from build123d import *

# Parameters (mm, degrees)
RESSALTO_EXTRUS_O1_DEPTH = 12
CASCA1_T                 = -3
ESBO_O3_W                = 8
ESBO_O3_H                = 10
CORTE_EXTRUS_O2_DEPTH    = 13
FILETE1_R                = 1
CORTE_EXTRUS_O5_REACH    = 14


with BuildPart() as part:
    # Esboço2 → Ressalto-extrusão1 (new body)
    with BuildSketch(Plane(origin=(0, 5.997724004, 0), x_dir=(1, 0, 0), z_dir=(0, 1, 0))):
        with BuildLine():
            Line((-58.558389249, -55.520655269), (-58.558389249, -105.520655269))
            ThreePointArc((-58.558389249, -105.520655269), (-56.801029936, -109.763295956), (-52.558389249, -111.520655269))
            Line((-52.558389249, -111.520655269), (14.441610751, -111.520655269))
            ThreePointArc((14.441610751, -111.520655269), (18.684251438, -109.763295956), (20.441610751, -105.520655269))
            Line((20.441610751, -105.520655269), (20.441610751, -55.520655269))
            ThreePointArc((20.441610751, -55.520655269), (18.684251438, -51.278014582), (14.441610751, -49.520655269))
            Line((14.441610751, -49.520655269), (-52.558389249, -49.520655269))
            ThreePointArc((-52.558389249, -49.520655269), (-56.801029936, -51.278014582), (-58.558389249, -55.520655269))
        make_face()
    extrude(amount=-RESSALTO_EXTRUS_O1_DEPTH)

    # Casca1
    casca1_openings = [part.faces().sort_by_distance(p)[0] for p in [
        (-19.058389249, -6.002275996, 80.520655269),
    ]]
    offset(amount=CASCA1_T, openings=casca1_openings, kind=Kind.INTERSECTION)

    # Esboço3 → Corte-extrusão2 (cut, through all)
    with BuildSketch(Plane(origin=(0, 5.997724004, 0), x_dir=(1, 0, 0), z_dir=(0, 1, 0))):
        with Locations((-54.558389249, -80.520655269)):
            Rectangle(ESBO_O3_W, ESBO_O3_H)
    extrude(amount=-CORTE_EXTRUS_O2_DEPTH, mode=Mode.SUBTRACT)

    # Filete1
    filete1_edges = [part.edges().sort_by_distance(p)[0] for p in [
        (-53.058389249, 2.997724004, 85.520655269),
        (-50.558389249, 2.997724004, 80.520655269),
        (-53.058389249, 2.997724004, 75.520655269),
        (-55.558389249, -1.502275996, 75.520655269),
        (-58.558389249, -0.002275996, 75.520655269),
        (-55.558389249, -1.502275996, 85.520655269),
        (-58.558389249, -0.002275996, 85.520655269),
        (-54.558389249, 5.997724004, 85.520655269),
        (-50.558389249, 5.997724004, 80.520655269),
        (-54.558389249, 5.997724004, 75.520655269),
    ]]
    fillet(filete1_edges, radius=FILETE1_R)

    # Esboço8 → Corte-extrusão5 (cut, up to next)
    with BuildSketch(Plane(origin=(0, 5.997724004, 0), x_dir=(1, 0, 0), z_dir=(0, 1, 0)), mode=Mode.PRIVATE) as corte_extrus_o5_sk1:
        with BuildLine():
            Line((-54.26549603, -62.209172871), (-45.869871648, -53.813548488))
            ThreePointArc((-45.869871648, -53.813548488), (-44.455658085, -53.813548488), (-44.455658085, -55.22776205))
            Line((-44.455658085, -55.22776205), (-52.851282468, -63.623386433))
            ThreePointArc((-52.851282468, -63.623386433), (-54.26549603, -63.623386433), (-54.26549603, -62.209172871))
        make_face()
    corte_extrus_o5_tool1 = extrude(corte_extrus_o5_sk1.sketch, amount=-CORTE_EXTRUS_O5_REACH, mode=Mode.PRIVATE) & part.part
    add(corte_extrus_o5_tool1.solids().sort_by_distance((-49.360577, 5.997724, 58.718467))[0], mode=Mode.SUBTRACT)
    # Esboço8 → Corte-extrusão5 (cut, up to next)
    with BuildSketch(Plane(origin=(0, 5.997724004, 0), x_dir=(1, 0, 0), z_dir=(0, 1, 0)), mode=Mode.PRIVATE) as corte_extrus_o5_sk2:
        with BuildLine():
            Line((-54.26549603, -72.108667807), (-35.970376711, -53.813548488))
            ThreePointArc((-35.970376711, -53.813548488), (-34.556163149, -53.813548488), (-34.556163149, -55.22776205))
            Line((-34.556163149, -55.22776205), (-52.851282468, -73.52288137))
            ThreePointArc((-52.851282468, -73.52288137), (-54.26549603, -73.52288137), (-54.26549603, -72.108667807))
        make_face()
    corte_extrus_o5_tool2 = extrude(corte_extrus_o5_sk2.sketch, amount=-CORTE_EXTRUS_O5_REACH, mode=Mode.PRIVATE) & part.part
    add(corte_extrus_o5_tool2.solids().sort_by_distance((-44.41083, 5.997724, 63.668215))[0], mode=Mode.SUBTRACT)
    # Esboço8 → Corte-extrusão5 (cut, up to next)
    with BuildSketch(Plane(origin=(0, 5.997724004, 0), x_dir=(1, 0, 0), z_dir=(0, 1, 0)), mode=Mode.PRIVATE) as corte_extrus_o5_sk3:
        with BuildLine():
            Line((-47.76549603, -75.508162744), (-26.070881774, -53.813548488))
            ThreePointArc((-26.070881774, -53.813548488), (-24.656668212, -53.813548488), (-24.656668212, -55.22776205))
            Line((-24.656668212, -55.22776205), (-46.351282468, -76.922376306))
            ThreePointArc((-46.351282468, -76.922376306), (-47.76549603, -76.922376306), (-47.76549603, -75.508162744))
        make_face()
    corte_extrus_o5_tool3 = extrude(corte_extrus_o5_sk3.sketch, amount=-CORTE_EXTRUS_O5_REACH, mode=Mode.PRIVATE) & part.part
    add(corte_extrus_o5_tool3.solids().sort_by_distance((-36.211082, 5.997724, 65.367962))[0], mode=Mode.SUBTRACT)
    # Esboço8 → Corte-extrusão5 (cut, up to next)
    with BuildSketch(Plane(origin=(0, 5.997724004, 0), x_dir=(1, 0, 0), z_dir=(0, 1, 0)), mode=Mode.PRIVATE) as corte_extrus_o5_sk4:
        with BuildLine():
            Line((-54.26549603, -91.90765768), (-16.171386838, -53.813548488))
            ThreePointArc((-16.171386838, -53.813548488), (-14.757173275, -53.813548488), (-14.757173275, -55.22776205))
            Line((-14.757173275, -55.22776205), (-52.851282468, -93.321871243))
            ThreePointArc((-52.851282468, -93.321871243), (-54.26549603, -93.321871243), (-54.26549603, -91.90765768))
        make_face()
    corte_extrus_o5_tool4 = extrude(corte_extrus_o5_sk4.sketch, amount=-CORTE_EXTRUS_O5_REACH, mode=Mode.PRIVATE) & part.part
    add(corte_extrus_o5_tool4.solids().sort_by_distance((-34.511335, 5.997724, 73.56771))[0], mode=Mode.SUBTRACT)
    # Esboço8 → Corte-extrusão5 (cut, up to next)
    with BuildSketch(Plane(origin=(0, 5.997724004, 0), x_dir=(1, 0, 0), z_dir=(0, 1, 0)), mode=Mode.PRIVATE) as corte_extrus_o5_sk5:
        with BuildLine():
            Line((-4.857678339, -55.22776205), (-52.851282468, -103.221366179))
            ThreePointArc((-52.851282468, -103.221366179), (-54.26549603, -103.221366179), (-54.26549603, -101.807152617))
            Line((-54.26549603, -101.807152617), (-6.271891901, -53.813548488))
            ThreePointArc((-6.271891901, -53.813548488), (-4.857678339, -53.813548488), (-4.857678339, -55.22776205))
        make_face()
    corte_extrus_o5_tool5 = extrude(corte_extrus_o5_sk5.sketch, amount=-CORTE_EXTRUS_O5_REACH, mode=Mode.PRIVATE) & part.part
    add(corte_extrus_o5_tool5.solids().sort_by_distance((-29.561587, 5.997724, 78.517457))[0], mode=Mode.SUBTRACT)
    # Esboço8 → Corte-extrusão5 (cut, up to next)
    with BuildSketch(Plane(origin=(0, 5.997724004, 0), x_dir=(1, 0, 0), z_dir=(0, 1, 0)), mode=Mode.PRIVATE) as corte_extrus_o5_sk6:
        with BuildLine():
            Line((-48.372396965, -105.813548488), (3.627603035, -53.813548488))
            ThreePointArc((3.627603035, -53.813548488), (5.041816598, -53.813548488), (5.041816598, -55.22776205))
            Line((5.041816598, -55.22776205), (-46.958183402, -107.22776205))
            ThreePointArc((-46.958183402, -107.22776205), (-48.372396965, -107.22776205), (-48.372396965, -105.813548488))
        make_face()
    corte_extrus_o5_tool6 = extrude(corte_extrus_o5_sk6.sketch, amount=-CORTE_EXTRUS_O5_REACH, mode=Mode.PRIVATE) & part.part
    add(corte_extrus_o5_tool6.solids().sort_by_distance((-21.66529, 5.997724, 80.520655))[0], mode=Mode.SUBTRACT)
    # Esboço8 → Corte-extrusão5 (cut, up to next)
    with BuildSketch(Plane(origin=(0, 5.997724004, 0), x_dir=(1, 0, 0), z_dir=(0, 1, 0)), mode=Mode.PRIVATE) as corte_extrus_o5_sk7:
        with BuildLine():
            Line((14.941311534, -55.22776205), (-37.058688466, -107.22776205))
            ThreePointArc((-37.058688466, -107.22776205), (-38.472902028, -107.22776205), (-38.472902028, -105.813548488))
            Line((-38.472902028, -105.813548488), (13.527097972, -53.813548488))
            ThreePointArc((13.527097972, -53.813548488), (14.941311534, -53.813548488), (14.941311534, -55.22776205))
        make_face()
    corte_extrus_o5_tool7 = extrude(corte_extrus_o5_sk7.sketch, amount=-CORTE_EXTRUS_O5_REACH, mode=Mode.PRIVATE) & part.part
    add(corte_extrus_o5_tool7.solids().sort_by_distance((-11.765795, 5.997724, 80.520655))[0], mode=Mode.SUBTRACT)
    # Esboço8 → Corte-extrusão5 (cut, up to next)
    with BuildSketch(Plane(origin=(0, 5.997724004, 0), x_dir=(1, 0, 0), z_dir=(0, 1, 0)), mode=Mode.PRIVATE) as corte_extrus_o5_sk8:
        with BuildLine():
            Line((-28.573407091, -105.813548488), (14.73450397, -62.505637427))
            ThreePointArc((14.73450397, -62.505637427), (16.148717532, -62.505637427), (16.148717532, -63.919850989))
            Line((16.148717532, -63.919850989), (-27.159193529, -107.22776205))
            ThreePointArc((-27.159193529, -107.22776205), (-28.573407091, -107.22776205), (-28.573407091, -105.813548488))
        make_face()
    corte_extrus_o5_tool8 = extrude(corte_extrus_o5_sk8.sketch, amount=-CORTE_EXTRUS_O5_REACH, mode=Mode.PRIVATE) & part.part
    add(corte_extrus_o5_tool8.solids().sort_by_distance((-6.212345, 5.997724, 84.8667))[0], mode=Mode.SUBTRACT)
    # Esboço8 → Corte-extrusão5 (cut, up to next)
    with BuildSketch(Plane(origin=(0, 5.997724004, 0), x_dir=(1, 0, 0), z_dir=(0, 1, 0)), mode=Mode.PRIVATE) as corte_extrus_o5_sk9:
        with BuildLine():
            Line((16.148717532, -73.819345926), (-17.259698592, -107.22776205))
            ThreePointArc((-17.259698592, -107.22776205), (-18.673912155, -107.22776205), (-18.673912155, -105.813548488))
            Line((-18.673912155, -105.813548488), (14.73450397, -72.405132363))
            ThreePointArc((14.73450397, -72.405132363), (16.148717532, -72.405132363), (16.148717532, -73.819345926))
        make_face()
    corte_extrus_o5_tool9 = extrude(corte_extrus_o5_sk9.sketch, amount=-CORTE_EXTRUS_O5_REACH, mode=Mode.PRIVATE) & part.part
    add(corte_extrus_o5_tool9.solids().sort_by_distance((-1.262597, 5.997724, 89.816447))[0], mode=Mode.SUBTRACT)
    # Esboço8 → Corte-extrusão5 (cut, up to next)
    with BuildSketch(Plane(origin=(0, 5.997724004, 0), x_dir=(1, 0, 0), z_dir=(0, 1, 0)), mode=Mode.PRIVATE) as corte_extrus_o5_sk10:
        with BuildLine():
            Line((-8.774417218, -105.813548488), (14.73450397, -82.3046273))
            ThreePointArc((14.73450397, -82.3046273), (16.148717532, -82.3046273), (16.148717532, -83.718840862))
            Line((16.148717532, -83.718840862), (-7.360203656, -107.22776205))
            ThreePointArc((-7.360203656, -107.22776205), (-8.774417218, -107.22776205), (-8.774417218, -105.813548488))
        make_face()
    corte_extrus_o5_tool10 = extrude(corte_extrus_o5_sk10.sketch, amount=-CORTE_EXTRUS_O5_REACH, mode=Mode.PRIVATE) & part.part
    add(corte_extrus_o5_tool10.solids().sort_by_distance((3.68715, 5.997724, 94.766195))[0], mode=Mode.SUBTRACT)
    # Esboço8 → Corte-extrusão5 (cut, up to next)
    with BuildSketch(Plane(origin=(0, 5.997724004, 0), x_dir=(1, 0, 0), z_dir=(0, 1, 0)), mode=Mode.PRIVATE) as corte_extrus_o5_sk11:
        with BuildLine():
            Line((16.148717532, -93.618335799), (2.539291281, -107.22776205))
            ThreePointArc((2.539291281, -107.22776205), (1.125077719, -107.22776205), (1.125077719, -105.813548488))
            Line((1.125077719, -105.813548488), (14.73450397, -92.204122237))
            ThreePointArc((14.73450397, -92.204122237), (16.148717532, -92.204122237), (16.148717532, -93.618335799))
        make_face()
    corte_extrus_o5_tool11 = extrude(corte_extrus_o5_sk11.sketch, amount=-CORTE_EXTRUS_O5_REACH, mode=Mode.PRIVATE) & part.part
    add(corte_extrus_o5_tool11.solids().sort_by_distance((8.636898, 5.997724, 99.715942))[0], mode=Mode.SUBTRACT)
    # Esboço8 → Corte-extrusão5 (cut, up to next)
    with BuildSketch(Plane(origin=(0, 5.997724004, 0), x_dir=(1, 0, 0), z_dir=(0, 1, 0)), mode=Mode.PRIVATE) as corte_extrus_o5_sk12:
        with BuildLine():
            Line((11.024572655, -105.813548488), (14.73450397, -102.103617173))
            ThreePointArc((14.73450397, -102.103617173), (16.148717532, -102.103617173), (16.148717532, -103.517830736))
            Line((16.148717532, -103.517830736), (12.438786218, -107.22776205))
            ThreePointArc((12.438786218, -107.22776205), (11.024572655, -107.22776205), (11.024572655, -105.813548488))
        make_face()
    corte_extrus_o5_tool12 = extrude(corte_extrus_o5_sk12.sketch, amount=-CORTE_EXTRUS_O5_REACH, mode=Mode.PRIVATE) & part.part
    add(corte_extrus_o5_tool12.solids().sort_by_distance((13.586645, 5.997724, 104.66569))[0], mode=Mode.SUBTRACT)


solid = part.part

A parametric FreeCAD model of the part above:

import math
import FreeCAD as App
import Part
import Sketcher
Q = App.Units.Quantity


def edges_at(feature, points):
    """Names of the edges that pass closest to the given points."""
    edges = feature.Shape.Edges
    near = lambda p: min(range(len(edges)), key=lambda i: edges[i].distToShape(Part.Vertex(*p))[0])
    return sorted({f"Edge{near(p) + 1}" for p in points})


def faces_at(feature, points):
    """Names of the faces that lie closest to the given points."""
    faces = feature.Shape.Faces
    near = lambda p: min(range(len(faces)), key=lambda i: faces[i].distToShape(Part.Vertex(*p))[0])
    return sorted({f"Face{near(p) + 1}" for p in points})


def add_polygon(sketch, points):
    """Adds a closed chain of lines whose ends are joined by coincident constraints."""
    first, n = sketch.GeometryCount, len(points)
    for a, b in zip(points, points[1:] + points[:1]):
        sketch.addGeometry(Part.LineSegment(App.Vector(*a, 0), App.Vector(*b, 0)), False)
    for i in range(n):
        sketch.addConstraint(Sketcher.Constraint("Coincident", first + i, 2, first + (i + 1) % n, 1))

doc = App.newDocument("Part")
params = doc.addObject("Spreadsheet::Sheet", "Params")
for row, (alias, value) in enumerate([
    ("sketch1_radius", "6 mm"),
    ("sketch1_width", "67 mm"),
    ("sketch1_height", "50 mm"),
    ("pad1_length", "12 mm"),
    ("thickness_wall", "3 mm"),
    ("sketch2_width", "8 mm"),
    ("sketch2_height", "10 mm"),
    ("fillet_radius", "1 mm"),
    ("sketch3_radius", "1 mm"),
    ("sketch4_radius", "1 mm"),
    ("sketch5_radius", "1 mm"),
    ("sketch6_radius", "1 mm"),
    ("sketch7_radius", "1 mm"),
    ("sketch8_radius", "1 mm"),
    ("sketch9_radius", "1 mm"),
    ("sketch10_radius", "1 mm"),
    ("sketch11_radius", "1 mm"),
    ("sketch12_radius", "1 mm"),
    ("sketch13_radius", "1 mm"),
    ("sketch14_radius", "1 mm"),
], start=1):
    params.set(f"A{row}", alias)
    params.set(f"B{row}", "=" + value)
    params.setAlias(f"B{row}", alias)

body = doc.addObject("PartDesign::Body", "Body")

# Sketch on XZ plane
sketch1 = doc.addObject("Sketcher::SketchObject", "Sketch")
body.addObject(sketch1)
sketch1.AttachmentSupport = (doc.XZ_Plane, [""])
sketch1.MapMode = "FlatFace"
sketch1.AttachmentOffset = App.Placement(App.Vector(0, 0, -5.997724), App.Rotation())
sketch1.addGeometry([
    Part.LineSegment(App.Vector(-58.558389, 55.520655, 0), App.Vector(-58.558389, 105.520655, 0)),  # 0
    Part.ArcOfCircle(Part.Circle(App.Vector(-52.558389, 105.520655, 0), App.Vector(0, 0, 1), 6), math.radians(90), math.radians(180)),  # 1
    Part.LineSegment(App.Vector(-52.558389, 111.520655, 0), App.Vector(14.441611, 111.520655, 0)),  # 2
    Part.ArcOfCircle(Part.Circle(App.Vector(14.441611, 105.520655, 0), App.Vector(0, 0, 1), 6), math.radians(0), math.radians(90)),  # 3
    Part.LineSegment(App.Vector(20.441611, 105.520655, 0), App.Vector(20.441611, 55.520655, 0)),  # 4
    Part.ArcOfCircle(Part.Circle(App.Vector(14.441611, 55.520655, 0), App.Vector(0, 0, 1), 6), math.radians(-90), math.radians(0)),  # 5
    Part.LineSegment(App.Vector(14.441611, 49.520655, 0), App.Vector(-52.558389, 49.520655, 0)),  # 6
    Part.ArcOfCircle(Part.Circle(App.Vector(-52.558389, 55.520655, 0), App.Vector(0, 0, 1), 6), math.radians(180), math.radians(270)),  # 7
], False)
sketch1.addConstraint([
    Sketcher.Constraint("Tangent", 0, 2, 1, 2),
    Sketcher.Constraint("Tangent", 1, 1, 2, 1),
    Sketcher.Constraint("Tangent", 2, 2, 3, 2),
    Sketcher.Constraint("Tangent", 3, 1, 4, 1),
    Sketcher.Constraint("Tangent", 4, 2, 5, 2),
    Sketcher.Constraint("Tangent", 5, 1, 6, 1),
    Sketcher.Constraint("Tangent", 6, 2, 7, 2),
    Sketcher.Constraint("Tangent", 7, 1, 0, 1),
    Sketcher.Constraint("Vertical", 0),
    Sketcher.Constraint("Horizontal", 2),
    Sketcher.Constraint("Vertical", 4),
    Sketcher.Constraint("Horizontal", 6),
    Sketcher.Constraint("Equal", 1, 3),
    Sketcher.Constraint("Equal", 3, 5),
    Sketcher.Constraint("Equal", 5, 7),
    Sketcher.Constraint("Radius", 1, Q("6 mm")),
    Sketcher.Constraint("DistanceX", 2, 1, 2, 2, Q("67 mm")),
    Sketcher.Constraint("DistanceY", 0, 1, 0, 2, Q("50 mm")),
    Sketcher.Constraint("DistanceX", 1, 3, -1, 1, Q("52.558389 mm")),
    Sketcher.Constraint("DistanceY", -1, 1, 1, 3, Q("105.520655 mm")),
])
sketch1.setExpression("Constraints[15]", "Params.sketch1_radius")
sketch1.setExpression("Constraints[16]", "Params.sketch1_width")
sketch1.setExpression("Constraints[17]", "Params.sketch1_height")
pad1 = doc.addObject("PartDesign::Pad", "Pad")
body.addObject(pad1)
pad1.Profile = sketch1
pad1.setExpression("Length", "Params.pad1_length")
doc.recompute()

thickness = doc.addObject("PartDesign::Thickness", "Thickness")
body.addObject(thickness)
thickness.Base = (pad1, faces_at(pad1, [(-19.058, -6.002, 80.521)]))
thickness.setExpression("Value", "Params.thickness_wall")
thickness.Reversed = True
thickness.Join = "Intersection"

# Sketch on XZ plane
sketch2 = doc.addObject("Sketcher::SketchObject", "Sketch001")
body.addObject(sketch2)
sketch2.AttachmentSupport = (doc.XZ_Plane, [""])
sketch2.MapMode = "FlatFace"
sketch2.AttachmentOffset = App.Placement(App.Vector(0, 0, -5.997724), App.Rotation())
add_polygon(sketch2, [(-58.558389, 75.520655), (-58.558389, 85.520655), (-50.558389, 85.520655), (-50.558389, 75.520655)])  # lines 0-3
sketch2.addConstraint([
    Sketcher.Constraint("Vertical", 0),
    Sketcher.Constraint("Horizontal", 1),
    Sketcher.Constraint("Vertical", 2),
    Sketcher.Constraint("Horizontal", 3),
    Sketcher.Constraint("DistanceX", 1, 1, 1, 2, Q("8 mm")),
    Sketcher.Constraint("DistanceY", 0, 1, 0, 2, Q("10 mm")),
    Sketcher.Constraint("DistanceX", 0, 2, -1, 1, Q("58.558389 mm")),
    Sketcher.Constraint("DistanceY", -1, 1, 0, 2, Q("85.520655 mm")),
])
sketch2.setExpression("Constraints[8]", "Params.sketch2_width")
sketch2.setExpression("Constraints[9]", "Params.sketch2_height")
pocket1 = doc.addObject("PartDesign::Pocket", "Pocket")
body.addObject(pocket1)
pocket1.Profile = sketch2
pocket1.Type = "ThroughAll"
pocket1.Reversed = True
doc.recompute()

fillet = doc.addObject("PartDesign::Fillet", "Fillet")
body.addObject(fillet)
fillet.Base = (pocket1, edges_at(pocket1, [
    (-53.058, 2.998, 85.521),
    (-50.558, 2.998, 80.521),
    (-53.058, 2.998, 75.521),
    (-55.558, -1.502, 75.521),
    (-58.558, -0.002, 75.521),
    (-55.558, -1.502, 85.521),
    (-58.558, -0.002, 85.521),
    (-54.558, 5.998, 85.521),
    (-50.558, 5.998, 80.521),
    (-54.558, 5.998, 75.521),
]))
fillet.setExpression("Radius", "Params.fillet_radius")

# Sketch on XZ plane
sketch3 = doc.addObject("Sketcher::SketchObject", "Sketch002")
body.addObject(sketch3)
sketch3.AttachmentSupport = (doc.XZ_Plane, [""])
sketch3.MapMode = "FlatFace"
sketch3.AttachmentOffset = App.Placement(App.Vector(0, 0, -5.997724), App.Rotation())
sketch3.addGeometry([
    Part.LineSegment(App.Vector(-45.869872, 53.813548, 0), App.Vector(-54.265496, 62.209173, 0)),
    Part.ArcOfCircle(Part.Circle(App.Vector(-53.558389, 62.91628, 0), App.Vector(0, 0, 1), 1), math.radians(45), math.radians(225)),
    Part.LineSegment(App.Vector(-52.851282, 63.623386, 0), App.Vector(-44.455658, 55.227762, 0)),
    Part.ArcOfCircle(Part.Circle(App.Vector(-45.162765, 54.520655, 0), App.Vector(0, 0, 1), 1), math.radians(-135), math.radians(45)),
], False)
sketch3.addConstraint([
    Sketcher.Constraint("Tangent", 0, 2, 1, 2),
    Sketcher.Constraint("Tangent", 1, 1, 2, 1),
    Sketcher.Constraint("Tangent", 2, 2, 3, 2),
    Sketcher.Constraint("Tangent", 3, 1, 0, 1),
    Sketcher.Constraint("Equal", 1, 3),
    Sketcher.Constraint("Radius", 1, Q("1 mm")),
    Sketcher.Constraint("Angle", 0, Q("135 deg")),
    Sketcher.Constraint("DistanceX", 1, 3, -1, 1, Q("53.558389 mm")),
    Sketcher.Constraint("DistanceY", -1, 1, 1, 3, Q("62.91628 mm")),
    Sketcher.Constraint("DistanceX", 2, 2, -1, 1, Q("44.455658 mm")),
])
sketch3.setExpression("Constraints[5]", "Params.sketch3_radius")
pocket2 = doc.addObject("PartDesign::Pocket", "Pocket001")
body.addObject(pocket2)
pocket2.Profile = sketch3
pocket2.Type = "UpToFirst"
pocket2.Reversed = True

# Sketch on XZ plane
sketch4 = doc.addObject("Sketcher::SketchObject", "Sketch003")
body.addObject(sketch4)
sketch4.AttachmentSupport = (doc.XZ_Plane, [""])
sketch4.MapMode = "FlatFace"
sketch4.AttachmentOffset = App.Placement(App.Vector(0, 0, -5.997724), App.Rotation())
sketch4.addGeometry([
    Part.LineSegment(App.Vector(-35.970377, 53.813548, 0), App.Vector(-54.265496, 72.108668, 0)),
    Part.ArcOfCircle(Part.Circle(App.Vector(-53.558389, 72.815775, 0), App.Vector(0, 0, 1), 1), math.radians(45), math.radians(225)),
    Part.LineSegment(App.Vector(-52.851282, 73.522881, 0), App.Vector(-34.556163, 55.227762, 0)),
    Part.ArcOfCircle(Part.Circle(App.Vector(-35.26327, 54.520655, 0), App.Vector(0, 0, 1), 1), math.radians(-135), math.radians(45)),
], False)
sketch4.addConstraint([
    Sketcher.Constraint("Tangent", 0, 2, 1, 2),
    Sketcher.Constraint("Tangent", 1, 1, 2, 1),
    Sketcher.Constraint("Tangent", 2, 2, 3, 2),
    Sketcher.Constraint("Tangent", 3, 1, 0, 1),
    Sketcher.Constraint("Equal", 1, 3),
    Sketcher.Constraint("Radius", 1, Q("1 mm")),
    Sketcher.Constraint("Angle", 0, Q("135 deg")),
    Sketcher.Constraint("DistanceX", 1, 3, -1, 1, Q("53.558389 mm")),
    Sketcher.Constraint("DistanceX", 3, 3, -1, 1, Q("35.26327 mm")),
    Sketcher.Constraint("DistanceY", -1, 1, 1, 1, Q("73.522881 mm")),
])
sketch4.setExpression("Constraints[5]", "Params.sketch4_radius")
pocket3 = doc.addObject("PartDesign::Pocket", "Pocket002")
body.addObject(pocket3)
pocket3.Profile = sketch4
pocket3.Type = "UpToFirst"
pocket3.Reversed = True

# Sketch on XZ plane
sketch5 = doc.addObject("Sketcher::SketchObject", "Sketch004")
body.addObject(sketch5)
sketch5.AttachmentSupport = (doc.XZ_Plane, [""])
sketch5.MapMode = "FlatFace"
sketch5.AttachmentOffset = App.Placement(App.Vector(0, 0, -5.997724), App.Rotation())
sketch5.addGeometry([
    Part.LineSegment(App.Vector(-26.070882, 53.813548, 0), App.Vector(-47.765496, 75.508163, 0)),
    Part.ArcOfCircle(Part.Circle(App.Vector(-47.058389, 76.21527, 0), App.Vector(0, 0, 1), 1), math.radians(45), math.radians(225)),
    Part.LineSegment(App.Vector(-46.351282, 76.922376, 0), App.Vector(-24.656668, 55.227762, 0)),
    Part.ArcOfCircle(Part.Circle(App.Vector(-25.363775, 54.520655, 0), App.Vector(0, 0, 1), 1), math.radians(-135), math.radians(45)),
], False)
sketch5.addConstraint([
    Sketcher.Constraint("Tangent", 0, 2, 1, 2),
    Sketcher.Constraint("Tangent", 1, 1, 2, 1),
    Sketcher.Constraint("Tangent", 2, 2, 3, 2),
    Sketcher.Constraint("Tangent", 3, 1, 0, 1),
    Sketcher.Constraint("Equal", 1, 3),
    Sketcher.Constraint("Radius", 1, Q("1 mm")),
    Sketcher.Constraint("Angle", 0, Q("135 deg")),
    Sketcher.Constraint("DistanceY", 2, 2, 0, 2, Q("20.280401 mm")),
    Sketcher.Constraint("DistanceX", 1, 3, -1, 1, Q("47.058389 mm")),
    Sketcher.Constraint("DistanceY", -1, 1, 1, 3, Q("76.21527 mm")),
])
sketch5.setExpression("Constraints[5]", "Params.sketch5_radius")
pocket4 = doc.addObject("PartDesign::Pocket", "Pocket003")
body.addObject(pocket4)
pocket4.Profile = sketch5
pocket4.Type = "UpToFirst"
pocket4.Reversed = True

# Sketch on XZ plane
sketch6 = doc.addObject("Sketcher::SketchObject", "Sketch005")
body.addObject(sketch6)
sketch6.AttachmentSupport = (doc.XZ_Plane, [""])
sketch6.MapMode = "FlatFace"
sketch6.AttachmentOffset = App.Placement(App.Vector(0, 0, -5.997724), App.Rotation())
sketch6.addGeometry([
    Part.LineSegment(App.Vector(-16.171387, 53.813548, 0), App.Vector(-54.265496, 91.907658, 0)),
    Part.ArcOfCircle(Part.Circle(App.Vector(-53.558389, 92.614764, 0), App.Vector(0, 0, 1), 1), math.radians(45), math.radians(225)),
    Part.LineSegment(App.Vector(-52.851282, 93.321871, 0), App.Vector(-14.757173, 55.227762, 0)),
    Part.ArcOfCircle(Part.Circle(App.Vector(-15.46428, 54.520655, 0), App.Vector(0, 0, 1), 1), math.radians(-135), math.radians(45)),
], False)
sketch6.addConstraint([
    Sketcher.Constraint("Tangent", 0, 2, 1, 2),
    Sketcher.Constraint("Tangent", 1, 1, 2, 1),
    Sketcher.Constraint("Tangent", 2, 2, 3, 2),
    Sketcher.Constraint("Tangent", 3, 1, 0, 1),
    Sketcher.Constraint("Equal", 1, 3),
    Sketcher.Constraint("Radius", 1, Q("1 mm")),
    Sketcher.Constraint("Angle", 0, Q("135 deg")),
    Sketcher.Constraint("DistanceX", 1, 3, -1, 1, Q("53.558389 mm")),
    Sketcher.Constraint("DistanceX", 3, 3, -1, 1, Q("15.46428 mm")),
    Sketcher.Constraint("DistanceY", -1, 1, 1, 1, Q("93.321871 mm")),
])
sketch6.setExpression("Constraints[5]", "Params.sketch6_radius")
pocket5 = doc.addObject("PartDesign::Pocket", "Pocket004")
body.addObject(pocket5)
pocket5.Profile = sketch6
pocket5.Type = "UpToFirst"
pocket5.Reversed = True

# Sketch on XZ plane
sketch7 = doc.addObject("Sketcher::SketchObject", "Sketch006")
body.addObject(sketch7)
sketch7.AttachmentSupport = (doc.XZ_Plane, [""])
sketch7.MapMode = "FlatFace"
sketch7.AttachmentOffset = App.Placement(App.Vector(0, 0, -5.997724), App.Rotation())
sketch7.addGeometry([
    Part.LineSegment(App.Vector(-52.851282, 103.221366, 0), App.Vector(-4.857678, 55.227762, 0)),
    Part.ArcOfCircle(Part.Circle(App.Vector(-5.564785, 54.520655, 0), App.Vector(0, 0, 1), 1), math.radians(-135), math.radians(45)),
    Part.LineSegment(App.Vector(-6.271892, 53.813548, 0), App.Vector(-54.265496, 101.807153, 0)),
    Part.ArcOfCircle(Part.Circle(App.Vector(-53.558389, 102.514259, 0), App.Vector(0, 0, 1), 1), math.radians(45), math.radians(225)),
], False)
sketch7.addConstraint([
    Sketcher.Constraint("Tangent", 0, 2, 1, 2),
    Sketcher.Constraint("Tangent", 1, 1, 2, 1),
    Sketcher.Constraint("Tangent", 2, 2, 3, 2),
    Sketcher.Constraint("Tangent", 3, 1, 0, 1),
    Sketcher.Constraint("Equal", 1, 3),
    Sketcher.Constraint("Radius", 1, Q("1 mm")),
    Sketcher.Constraint("Angle", 0, Q("-45 deg")),
    Sketcher.Constraint("DistanceX", 3, 3, -1, 1, Q("53.558389 mm")),
    Sketcher.Constraint("DistanceY", -1, 1, 3, 3, Q("102.514259 mm")),
    Sketcher.Constraint("DistanceX", 0, 2, -1, 1, Q("4.857678 mm")),
])
sketch7.setExpression("Constraints[5]", "Params.sketch7_radius")
pocket6 = doc.addObject("PartDesign::Pocket", "Pocket005")
body.addObject(pocket6)
pocket6.Profile = sketch7
pocket6.Type = "UpToFirst"
pocket6.Reversed = True

# Sketch on XZ plane
sketch8 = doc.addObject("Sketcher::SketchObject", "Sketch007")
body.addObject(sketch8)
sketch8.AttachmentSupport = (doc.XZ_Plane, [""])
sketch8.MapMode = "FlatFace"
sketch8.AttachmentOffset = App.Placement(App.Vector(0, 0, -5.997724), App.Rotation())
sketch8.addGeometry([
    Part.LineSegment(App.Vector(3.627603, 53.813548, 0), App.Vector(-48.372397, 105.813548, 0)),
    Part.ArcOfCircle(Part.Circle(App.Vector(-47.66529, 106.520655, 0), App.Vector(0, 0, 1), 1), math.radians(45), math.radians(225)),
    Part.LineSegment(App.Vector(-46.958183, 107.227762, 0), App.Vector(5.041817, 55.227762, 0)),
    Part.ArcOfCircle(Part.Circle(App.Vector(4.33471, 54.520655, 0), App.Vector(0, 0, 1), 1), math.radians(-135), math.radians(45)),
], False)
sketch8.addConstraint([
    Sketcher.Constraint("Tangent", 0, 2, 1, 2),
    Sketcher.Constraint("Tangent", 1, 1, 2, 1),
    Sketcher.Constraint("Tangent", 2, 2, 3, 2),
    Sketcher.Constraint("Tangent", 3, 1, 0, 1),
    Sketcher.Constraint("Equal", 1, 3),
    Sketcher.Constraint("Radius", 1, Q("1 mm")),
    Sketcher.Constraint("Angle", 0, Q("135 deg")),
    Sketcher.Constraint("DistanceX", 1, 3, 3, 3, Q("52 mm")),
    Sketcher.Constraint("DistanceX", 1, 3, -1, 1, Q("47.66529 mm")),
    Sketcher.Constraint("DistanceY", -1, 1, 0, 2, Q("105.813548 mm")),
])
sketch8.setExpression("Constraints[5]", "Params.sketch8_radius")
pocket7 = doc.addObject("PartDesign::Pocket", "Pocket006")
body.addObject(pocket7)
pocket7.Profile = sketch8
pocket7.Type = "UpToFirst"
pocket7.Reversed = True

# Sketch on XZ plane
sketch9 = doc.addObject("Sketcher::SketchObject", "Sketch008")
body.addObject(sketch9)
sketch9.AttachmentSupport = (doc.XZ_Plane, [""])
sketch9.MapMode = "FlatFace"
sketch9.AttachmentOffset = App.Placement(App.Vector(0, 0, -5.997724), App.Rotation())
sketch9.addGeometry([
    Part.LineSegment(App.Vector(-37.058688, 107.227762, 0), App.Vector(14.941312, 55.227762, 0)),
    Part.ArcOfCircle(Part.Circle(App.Vector(14.234205, 54.520655, 0), App.Vector(0, 0, 1), 1), math.radians(-135), math.radians(45)),
    Part.LineSegment(App.Vector(13.527098, 53.813548, 0), App.Vector(-38.472902, 105.813548, 0)),
    Part.ArcOfCircle(Part.Circle(App.Vector(-37.765795, 106.520655, 0), App.Vector(0, 0, 1), 1), math.radians(45), math.radians(225)),
], False)
sketch9.addConstraint([
    Sketcher.Constraint("Tangent", 0, 2, 1, 2),
    Sketcher.Constraint("Tangent", 1, 1, 2, 1),
    Sketcher.Constraint("Tangent", 2, 2, 3, 2),
    Sketcher.Constraint("Tangent", 3, 1, 0, 1),
    Sketcher.Constraint("Equal", 1, 3),
    Sketcher.Constraint("Radius", 1, Q("1 mm")),
    Sketcher.Constraint("Angle", 0, Q("-45 deg")),
    Sketcher.Constraint("DistanceX", 3, 3, 1, 3, Q("52 mm")),
    Sketcher.Constraint("DistanceX", -1, 1, 0, 2, Q("14.941312 mm")),
    Sketcher.Constraint("DistanceY", -1, 1, 1, 1, Q("53.813548 mm")),
])
sketch9.setExpression("Constraints[5]", "Params.sketch9_radius")
pocket8 = doc.addObject("PartDesign::Pocket", "Pocket007")
body.addObject(pocket8)
pocket8.Profile = sketch9
pocket8.Type = "UpToFirst"
pocket8.Reversed = True

# Sketch on XZ plane
sketch10 = doc.addObject("Sketcher::SketchObject", "Sketch009")
body.addObject(sketch10)
sketch10.AttachmentSupport = (doc.XZ_Plane, [""])
sketch10.MapMode = "FlatFace"
sketch10.AttachmentOffset = App.Placement(App.Vector(0, 0, -5.997724), App.Rotation())
sketch10.addGeometry([
    Part.LineSegment(App.Vector(14.734504, 62.505637, 0), App.Vector(-28.573407, 105.813548, 0)),
    Part.ArcOfCircle(Part.Circle(App.Vector(-27.8663, 106.520655, 0), App.Vector(0, 0, 1), 1), math.radians(45), math.radians(225)),
    Part.LineSegment(App.Vector(-27.159194, 107.227762, 0), App.Vector(16.148718, 63.919851, 0)),
    Part.ArcOfCircle(Part.Circle(App.Vector(15.441611, 63.212744, 0), App.Vector(0, 0, 1), 1), math.radians(-135), math.radians(45)),
], False)
sketch10.addConstraint([
    Sketcher.Constraint("Tangent", 0, 2, 1, 2),
    Sketcher.Constraint("Tangent", 1, 1, 2, 1),
    Sketcher.Constraint("Tangent", 2, 2, 3, 2),
    Sketcher.Constraint("Tangent", 3, 1, 0, 1),
    Sketcher.Constraint("Equal", 1, 3),
    Sketcher.Constraint("Radius", 1, Q("1 mm")),
    Sketcher.Constraint("Angle", 0, Q("135 deg")),
    Sketcher.Constraint("DistanceX", 1, 3, -1, 1, Q("27.8663 mm")),
    Sketcher.Constraint("DistanceX", -1, 1, 3, 3, Q("15.441611 mm")),
    Sketcher.Constraint("DistanceY", -1, 1, 0, 2, Q("105.813548 mm")),
])
sketch10.setExpression("Constraints[5]", "Params.sketch10_radius")
pocket9 = doc.addObject("PartDesign::Pocket", "Pocket008")
body.addObject(pocket9)
pocket9.Profile = sketch10
pocket9.Type = "UpToFirst"
pocket9.Reversed = True

# Sketch on XZ plane
sketch11 = doc.addObject("Sketcher::SketchObject", "Sketch010")
body.addObject(sketch11)
sketch11.AttachmentSupport = (doc.XZ_Plane, [""])
sketch11.MapMode = "FlatFace"
sketch11.AttachmentOffset = App.Placement(App.Vector(0, 0, -5.997724), App.Rotation())
sketch11.addGeometry([
    Part.LineSegment(App.Vector(-17.259699, 107.227762, 0), App.Vector(16.148718, 73.819346, 0)),
    Part.ArcOfCircle(Part.Circle(App.Vector(15.441611, 73.112239, 0), App.Vector(0, 0, 1), 1), math.radians(-135), math.radians(45)),
    Part.LineSegment(App.Vector(14.734504, 72.405132, 0), App.Vector(-18.673912, 105.813548, 0)),
    Part.ArcOfCircle(Part.Circle(App.Vector(-17.966805, 106.520655, 0), App.Vector(0, 0, 1), 1), math.radians(45), math.radians(225)),
], False)
sketch11.addConstraint([
    Sketcher.Constraint("Tangent", 0, 2, 1, 2),
    Sketcher.Constraint("Tangent", 1, 1, 2, 1),
    Sketcher.Constraint("Tangent", 2, 2, 3, 2),
    Sketcher.Constraint("Tangent", 3, 1, 0, 1),
    Sketcher.Constraint("Equal", 1, 3),
    Sketcher.Constraint("Radius", 1, Q("1 mm")),
    Sketcher.Constraint("Angle", 0, Q("-45 deg")),
    Sketcher.Constraint("DistanceX", 3, 1, -1, 1, Q("17.259699 mm")),
    Sketcher.Constraint("DistanceX", -1, 1, 1, 3, Q("15.441611 mm")),
    Sketcher.Constraint("DistanceY", -1, 1, 1, 3, Q("73.112239 mm")),
])
sketch11.setExpression("Constraints[5]", "Params.sketch11_radius")
pocket10 = doc.addObject("PartDesign::Pocket", "Pocket009")
body.addObject(pocket10)
pocket10.Profile = sketch11
pocket10.Type = "UpToFirst"
pocket10.Reversed = True

# Sketch on XZ plane
sketch12 = doc.addObject("Sketcher::SketchObject", "Sketch011")
body.addObject(sketch12)
sketch12.AttachmentSupport = (doc.XZ_Plane, [""])
sketch12.MapMode = "FlatFace"
sketch12.AttachmentOffset = App.Placement(App.Vector(0, 0, -5.997724), App.Rotation())
sketch12.addGeometry([
    Part.LineSegment(App.Vector(14.734504, 82.304627, 0), App.Vector(-8.774417, 105.813548, 0)),
    Part.ArcOfCircle(Part.Circle(App.Vector(-8.06731, 106.520655, 0), App.Vector(0, 0, 1), 1), math.radians(45), math.radians(225)),
    Part.LineSegment(App.Vector(-7.360204, 107.227762, 0), App.Vector(16.148718, 83.718841, 0)),
    Part.ArcOfCircle(Part.Circle(App.Vector(15.441611, 83.011734, 0), App.Vector(0, 0, 1), 1), math.radians(-135), math.radians(45)),
], False)
sketch12.addConstraint([
    Sketcher.Constraint("Tangent", 0, 2, 1, 2),
    Sketcher.Constraint("Tangent", 1, 1, 2, 1),
    Sketcher.Constraint("Tangent", 2, 2, 3, 2),
    Sketcher.Constraint("Tangent", 3, 1, 0, 1),
    Sketcher.Constraint("Equal", 1, 3),
    Sketcher.Constraint("Radius", 1, Q("1 mm")),
    Sketcher.Constraint("Angle", 0, Q("135 deg")),
    Sketcher.Constraint("DistanceX", 1, 3, -1, 1, Q("8.06731 mm")),
    Sketcher.Constraint("DistanceX", -1, 1, 3, 3, Q("15.441611 mm")),
    Sketcher.Constraint("DistanceY", -1, 1, 0, 2, Q("105.813548 mm")),
])
sketch12.setExpression("Constraints[5]", "Params.sketch12_radius")
pocket11 = doc.addObject("PartDesign::Pocket", "Pocket010")
body.addObject(pocket11)
pocket11.Profile = sketch12
pocket11.Type = "UpToFirst"
pocket11.Reversed = True

# Sketch on XZ plane
sketch13 = doc.addObject("Sketcher::SketchObject", "Sketch012")
body.addObject(sketch13)
sketch13.AttachmentSupport = (doc.XZ_Plane, [""])
sketch13.MapMode = "FlatFace"
sketch13.AttachmentOffset = App.Placement(App.Vector(0, 0, -5.997724), App.Rotation())
sketch13.addGeometry([
    Part.LineSegment(App.Vector(2.539291, 107.227762, 0), App.Vector(16.148718, 93.618336, 0)),
    Part.ArcOfCircle(Part.Circle(App.Vector(15.441611, 92.911229, 0), App.Vector(0, 0, 1), 1), math.radians(-135), math.radians(45)),
    Part.LineSegment(App.Vector(14.734504, 92.204122, 0), App.Vector(1.125078, 105.813548, 0)),
    Part.ArcOfCircle(Part.Circle(App.Vector(1.832185, 106.520655, 0), App.Vector(0, 0, 1), 1), math.radians(45), math.radians(225)),
], False)
sketch13.addConstraint([
    Sketcher.Constraint("Tangent", 0, 2, 1, 2),
    Sketcher.Constraint("Tangent", 1, 1, 2, 1),
    Sketcher.Constraint("Tangent", 2, 2, 3, 2),
    Sketcher.Constraint("Tangent", 3, 1, 0, 1),
    Sketcher.Constraint("Equal", 1, 3),
    Sketcher.Constraint("Radius", 1, Q("1 mm")),
    Sketcher.Constraint("Angle", 0, Q("-45 deg")),
    Sketcher.Constraint("DistanceX", -1, 1, 1, 3, Q("15.441611 mm")),
    Sketcher.Constraint("DistanceY", -1, 1, 1, 3, Q("92.911229 mm")),
    Sketcher.Constraint("DistanceY", -1, 1, 2, 2, Q("105.813548 mm")),
])
sketch13.setExpression("Constraints[5]", "Params.sketch13_radius")
pocket12 = doc.addObject("PartDesign::Pocket", "Pocket011")
body.addObject(pocket12)
pocket12.Profile = sketch13
pocket12.Type = "UpToFirst"
pocket12.Reversed = True

# Sketch on XZ plane
sketch14 = doc.addObject("Sketcher::SketchObject", "Sketch013")
body.addObject(sketch14)
sketch14.AttachmentSupport = (doc.XZ_Plane, [""])
sketch14.MapMode = "FlatFace"
sketch14.AttachmentOffset = App.Placement(App.Vector(0, 0, -5.997724), App.Rotation())
sketch14.addGeometry([
    Part.LineSegment(App.Vector(14.734504, 102.103617, 0), App.Vector(11.024573, 105.813548, 0)),
    Part.ArcOfCircle(Part.Circle(App.Vector(11.731679, 106.520655, 0), App.Vector(0, 0, 1), 1), math.radians(45), math.radians(225)),
    Part.LineSegment(App.Vector(12.438786, 107.227762, 0), App.Vector(16.148718, 103.517831, 0)),
    Part.ArcOfCircle(Part.Circle(App.Vector(15.441611, 102.810724, 0), App.Vector(0, 0, 1), 1), math.radians(-135), math.radians(45)),
], False)
sketch14.addConstraint([
    Sketcher.Constraint("Tangent", 0, 2, 1, 2),
    Sketcher.Constraint("Tangent", 1, 1, 2, 1),
    Sketcher.Constraint("Tangent", 2, 2, 3, 2),
    Sketcher.Constraint("Tangent", 3, 1, 0, 1),
    Sketcher.Constraint("Equal", 1, 3),
    Sketcher.Constraint("Radius", 1, Q("1 mm")),
    Sketcher.Constraint("Angle", 0, Q("135 deg")),
    Sketcher.Constraint("DistanceX", -1, 1, 1, 3, Q("11.731679 mm")),
    Sketcher.Constraint("DistanceX", -1, 1, 3, 3, Q("15.441611 mm")),
    Sketcher.Constraint("DistanceY", -1, 1, 0, 2, Q("105.813548 mm")),
])
sketch14.setExpression("Constraints[5]", "Params.sketch14_radius")
pocket13 = doc.addObject("PartDesign::Pocket", "Pocket012")
body.addObject(pocket13)
pocket13.Profile = sketch14
pocket13.Type = "UpToFirst"
pocket13.Reversed = True

doc.recompute()
